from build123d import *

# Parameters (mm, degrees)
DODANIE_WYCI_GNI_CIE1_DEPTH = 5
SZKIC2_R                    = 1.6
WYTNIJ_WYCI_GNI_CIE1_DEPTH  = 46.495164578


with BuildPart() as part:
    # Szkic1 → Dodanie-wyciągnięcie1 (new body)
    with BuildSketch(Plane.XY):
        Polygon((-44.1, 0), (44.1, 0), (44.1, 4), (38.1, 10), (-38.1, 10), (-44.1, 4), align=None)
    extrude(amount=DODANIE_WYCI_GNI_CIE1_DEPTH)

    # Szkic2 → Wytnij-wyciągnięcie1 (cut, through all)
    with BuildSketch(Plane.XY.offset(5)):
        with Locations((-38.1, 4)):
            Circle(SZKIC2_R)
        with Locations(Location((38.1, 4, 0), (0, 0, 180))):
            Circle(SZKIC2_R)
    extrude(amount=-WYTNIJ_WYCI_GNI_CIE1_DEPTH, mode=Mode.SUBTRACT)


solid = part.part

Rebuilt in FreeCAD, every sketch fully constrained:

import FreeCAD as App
import Part
import Sketcher
from FreeCAD import Vector
Q = App.Units.Quantity

doc = App.newDocument("Part")
body = doc.addObject("PartDesign::Body", "Body")

sketch1 = body.newObject("Sketcher::SketchObject", "Sketch")
sketch1.AttachmentSupport = (doc.getObject("XY_Plane"), [""])
sketch1.MapMode = "FlatFace"
sketch1.addGeometry([
    Part.LineSegment(Vector(-44.1, 0, 0), Vector(44.1, 0, 0)),
    Part.LineSegment(Vector(44.1, 0, 0), Vector(44.1, 4, 0)),
    Part.LineSegment(Vector(44.1, 4, 0), Vector(38.1, 10, 0)),
    Part.LineSegment(Vector(38.1, 10, 0), Vector(-38.1, 10, 0)),
    Part.LineSegment(Vector(-38.1, 10, 0), Vector(-44.1, 4, 0)),
    Part.LineSegment(Vector(-44.1, 4, 0), Vector(-44.1, 0, 0)),
], False)
sketch1.addConstraint([
    Sketcher.Constraint("Coincident", 0, 2, 1, 1),
    Sketcher.Constraint("Coincident", 1, 2, 2, 1),
    Sketcher.Constraint("Coincident", 2, 2, 3, 1),
    Sketcher.Constraint("Coincident", 3, 2, 4, 1),
    Sketcher.Constraint("Coincident", 4, 2, 5, 1),
    Sketcher.Constraint("Coincident", 5, 2, 0, 1),
    Sketcher.Constraint("Horizontal", 0),
    Sketcher.Constraint("Vertical", 1),
    Sketcher.Constraint("Horizontal", 3),
    Sketcher.Constraint("Vertical", 5),
    Sketcher.Constraint("Symmetric", 0, 2, 5, 2, -1, 1),
    Sketcher.Constraint("Perpendicular", 2, 4),
    Sketcher.Constraint("Horizontal", 1, 2, 4, 2),
    Sketcher.Constraint("Equal", 2, 4),
    Sketcher.Constraint("DistanceY", 1, 1, 1, 2, Q("4 mm")),
    Sketcher.Constraint("DistanceX", 0, 1, 0, 2, Q("88.2 mm")),
    Sketcher.Constraint("DistanceX", 3, 2, 3, 1, Q("76.2 mm")),
])
pad1 = body.newObject("PartDesign::Pad", "Pad")
pad1.Profile = sketch1
pad1.Length = 5

sketch2 = body.newObject("Sketcher::SketchObject", "Sketch001")
sketch2.AttachmentSupport = (doc.getObject("XY_Plane"), [""])
sketch2.MapMode = "FlatFace"
sketch2.AttachmentOffset = App.Placement(Vector(0, 0, 5), App.Rotation())
sketch2.addGeometry([
    Part.Circle(Vector(-38.1, 4, 0), Vector(0, 0, 1), 1.6),
    Part.Circle(Vector(38.1, 4, 0), Vector(0, 0, 1), 1.6),
], False)
sketch2.addConstraint([
    Sketcher.Constraint("Equal", 0, 1),
    Sketcher.Constraint("Symmetric", 0, 3, 1, 3, -2),
    Sketcher.Constraint("Diameter", 0, Q("3.2 mm")),
    Sketcher.Constraint("DistanceY", -1, 1, 0, 3, Q("4 mm")),
    Sketcher.Constraint("DistanceX", 0, 3, -1, 1, Q("38.1 mm")),
])
pocket1 = body.newObject("PartDesign::Pocket", "Pocket")
pocket1.Profile = sketch2
pocket1.Type = "ThroughAll"

doc.recompute()
